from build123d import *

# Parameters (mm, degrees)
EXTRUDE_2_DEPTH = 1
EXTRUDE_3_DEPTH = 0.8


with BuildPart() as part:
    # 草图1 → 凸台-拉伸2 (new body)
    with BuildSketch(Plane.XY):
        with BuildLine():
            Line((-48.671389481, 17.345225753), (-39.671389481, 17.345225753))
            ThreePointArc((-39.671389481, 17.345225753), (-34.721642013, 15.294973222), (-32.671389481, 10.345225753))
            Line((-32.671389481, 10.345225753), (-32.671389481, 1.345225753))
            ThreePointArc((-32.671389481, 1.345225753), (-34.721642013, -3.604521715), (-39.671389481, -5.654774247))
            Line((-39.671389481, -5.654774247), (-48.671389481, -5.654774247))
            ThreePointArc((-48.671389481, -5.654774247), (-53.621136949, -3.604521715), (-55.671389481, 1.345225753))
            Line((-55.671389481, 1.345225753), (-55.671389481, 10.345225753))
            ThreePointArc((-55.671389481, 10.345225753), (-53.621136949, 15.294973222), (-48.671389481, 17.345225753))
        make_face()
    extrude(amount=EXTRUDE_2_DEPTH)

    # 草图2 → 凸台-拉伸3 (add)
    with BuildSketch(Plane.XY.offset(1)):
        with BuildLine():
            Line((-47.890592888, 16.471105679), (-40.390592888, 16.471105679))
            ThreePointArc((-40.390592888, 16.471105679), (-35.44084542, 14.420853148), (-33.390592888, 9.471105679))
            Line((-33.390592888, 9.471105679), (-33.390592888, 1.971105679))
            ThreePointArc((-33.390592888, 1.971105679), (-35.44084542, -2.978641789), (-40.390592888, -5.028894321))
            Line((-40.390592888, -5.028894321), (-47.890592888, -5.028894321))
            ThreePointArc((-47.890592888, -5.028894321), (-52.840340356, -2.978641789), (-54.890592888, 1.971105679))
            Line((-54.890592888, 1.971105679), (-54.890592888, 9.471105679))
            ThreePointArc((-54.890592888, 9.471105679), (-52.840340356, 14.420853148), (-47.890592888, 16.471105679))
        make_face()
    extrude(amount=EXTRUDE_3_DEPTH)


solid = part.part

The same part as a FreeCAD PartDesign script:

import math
import FreeCAD as App
import Part
import Sketcher

doc = App.newDocument("Part")
body = doc.addObject("PartDesign::Body", "Body")

# Sketch on XY plane
sketch1 = doc.addObject("Sketcher::SketchObject", "Sketch")
body.addObject(sketch1)
sketch1.AttachmentSupport = (doc.XY_Plane, [""])
sketch1.MapMode = "FlatFace"
sketch1.addGeometry(Part.LineSegment(App.Vector(-39.671389, 17.345226, 0), App.Vector(-48.671389, 17.345226, 0)), False)
sketch1.addGeometry(Part.ArcOfCircle(Part.Circle(App.Vector(-48.671389, 10.345226, 0), App.Vector(0, 0, 1), 7), math.radians(90), math.radians(180)), False)
sketch1.addGeometry(Part.LineSegment(App.Vector(-55.671389, 10.345226, 0), App.Vector(-55.671389, 1.345226, 0)), False)
sketch1.addGeometry(Part.ArcOfCircle(Part.Circle(App.Vector(-48.671389, 1.345226, 0), App.Vector(0, 0, 1), 7), math.radians(-180), math.radians(-90)), False)
sketch1.addGeometry(Part.LineSegment(App.Vector(-48.671389, -5.654774, 0), App.Vector(-39.671389, -5.654774, 0)), False)
sketch1.addGeometry(Part.ArcOfCircle(Part.Circle(App.Vector(-39.671389, 1.345226, 0), App.Vector(0, 0, 1), 7), math.radians(-90), math.radians(0)), False)
sketch1.addGeometry(Part.LineSegment(App.Vector(-32.671389, 1.345226, 0), App.Vector(-32.671389, 10.345226, 0)), False)
sketch1.addGeometry(Part.ArcOfCircle(Part.Circle(App.Vector(-39.671389, 10.345226, 0), App.Vector(0, 0, 1), 7), math.radians(0), math.radians(90)), False)
sketch1.addConstraint(Sketcher.Constraint("Tangent", 0, 2, 1, 1))
sketch1.addConstraint(Sketcher.Constraint("Tangent", 1, 2, 2, 1))
sketch1.addConstraint(Sketcher.Constraint("Tangent", 2, 2, 3, 1))
sketch1.addConstraint(Sketcher.Constraint("Tangent", 3, 2, 4, 1))
sketch1.addConstraint(Sketcher.Constraint("Tangent", 4, 2, 5, 1))
sketch1.addConstraint(Sketcher.Constraint("Tangent", 5, 2, 6, 1))
sketch1.addConstraint(Sketcher.Constraint("Tangent", 6, 2, 7, 1))
sketch1.addConstraint(Sketcher.Constraint("Tangent", 7, 2, 0, 1))
sketch1.addConstraint(Sketcher.Constraint("Horizontal", 0))
sketch1.addConstraint(Sketcher.Constraint("Vertical", 2))
sketch1.addConstraint(Sketcher.Constraint("Horizontal", 4))
sketch1.addConstraint(Sketcher.Constraint("Vertical", 6))
sketch1.addConstraint(Sketcher.Constraint("Equal", 1, 3))
sketch1.addConstraint(Sketcher.Constraint("Equal", 3, 5))
sketch1.addConstraint(Sketcher.Constraint("Equal", 5, 7))
sketch1.addConstraint(Sketcher.Constraint("Equal", 4, 2))
sketch1.addConstraint(Sketcher.Constraint("Radius", 1, 7.0))
sketch1.addConstraint(Sketcher.Constraint("DistanceX", 0, 2, 0, 1, 9.0))
sketch1.addConstraint(Sketcher.Constraint("DistanceX", 1, 3, -1, 1, 48.671389))
sketch1.addConstraint(Sketcher.Constraint("DistanceY", -1, 1, 1, 3, 10.345226))
pad1 = doc.addObject("PartDesign::Pad", "Pad")
body.addObject(pad1)
pad1.Profile = sketch1
pad1.Length = 1

# Sketch on XY plane
sketch2 = doc.addObject("Sketcher::SketchObject", "Sketch001")
body.addObject(sketch2)
sketch2.AttachmentSupport = (doc.XY_Plane, [""])
sketch2.MapMode = "FlatFace"
sketch2.AttachmentOffset = App.Placement(App.Vector(0, 0, 1), App.Rotation())
sketch2.addGeometry(Part.LineSegment(App.Vector(-40.390593, 16.471106, 0), App.Vector(-47.890593, 16.471106, 0)), False)
sketch2.addGeometry(Part.ArcOfCircle(Part.Circle(App.Vector(-47.890593, 9.471106, 0), App.Vector(0, 0, 1), 7), math.radians(90), math.radians(180)), False)
sketch2.addGeometry(Part.LineSegment(App.Vector(-54.890593, 9.471106, 0), App.Vector(-54.890593, 1.971106, 0)), False)
sketch2.addGeometry(Part.ArcOfCircle(Part.Circle(App.Vector(-47.890593, 1.971106, 0), App.Vector(0, 0, 1), 7), math.radians(-180), math.radians(-90)), False)
sketch2.addGeometry(Part.LineSegment(App.Vector(-47.890593, -5.028894, 0), App.Vector(-40.390593, -5.028894, 0)), False)
sketch2.addGeometry(Part.ArcOfCircle(Part.Circle(App.Vector(-40.390593, 1.971106, 0), App.Vector(0, 0, 1), 7), math.radians(-90), math.radians(0)), False)
sketch2.addGeometry(Part.LineSegment(App.Vector(-33.390593, 1.971106, 0), App.Vector(-33.390593, 9.471106, 0)), False)
sketch2.addGeometry(Part.ArcOfCircle(Part.Circle(App.Vector(-40.390593, 9.471106, 0), App.Vector(0, 0, 1), 7), math.radians(0), math.radians(90)), False)
sketch2.addConstraint(Sketcher.Constraint("Tangent", 0, 2, 1, 1))
sketch2.addConstraint(Sketcher.Constraint("Tangent", 1, 2, 2, 1))
sketch2.addConstraint(Sketcher.Constraint("Tangent", 2, 2, 3, 1))
sketch2.addConstraint(Sketcher.Constraint("Tangent", 3, 2, 4, 1))
sketch2.addConstraint(Sketcher.Constraint("Tangent", 4, 2, 5, 1))
sketch2.addConstraint(Sketcher.Constraint("Tangent", 5, 2, 6, 1))
sketch2.addConstraint(Sketcher.Constraint("Tangent", 6, 2, 7, 1))
sketch2.addConstraint(Sketcher.Constraint("Tangent", 7, 2, 0, 1))
sketch2.addConstraint(Sketcher.Constraint("Horizontal", 0))
sketch2.addConstraint(Sketcher.Constraint("Vertical", 2))
sketch2.addConstraint(Sketcher.Constraint("Horizontal", 4))
sketch2.addConstraint(Sketcher.Constraint("Vertical", 6))
sketch2.addConstraint(Sketcher.Constraint("Equal", 1, 3))
sketch2.addConstraint(Sketcher.Constraint("Equal", 3, 5))
sketch2.addConstraint(Sketcher.Constraint("Equal", 5, 7))
sketch2.addConstraint(Sketcher.Constraint("Equal", 4, 2))
sketch2.addConstraint(Sketcher.Constraint("Radius", 1, 7.0))
sketch2.addConstraint(Sketcher.Constraint("DistanceX", 0, 2, 0, 1, 7.5))
sketch2.addConstraint(Sketcher.Constraint("DistanceX", 1, 3, -1, 1, 47.890593))
sketch2.addConstraint(Sketcher.Constraint("DistanceY", -1, 1, 1, 3, 9.471106))
pad2 = doc.addObject("PartDesign::Pad", "Pad001")
body.addObject(pad2)
pad2.Profile = sketch2
pad2.Length = 0.8

doc.recompute()
